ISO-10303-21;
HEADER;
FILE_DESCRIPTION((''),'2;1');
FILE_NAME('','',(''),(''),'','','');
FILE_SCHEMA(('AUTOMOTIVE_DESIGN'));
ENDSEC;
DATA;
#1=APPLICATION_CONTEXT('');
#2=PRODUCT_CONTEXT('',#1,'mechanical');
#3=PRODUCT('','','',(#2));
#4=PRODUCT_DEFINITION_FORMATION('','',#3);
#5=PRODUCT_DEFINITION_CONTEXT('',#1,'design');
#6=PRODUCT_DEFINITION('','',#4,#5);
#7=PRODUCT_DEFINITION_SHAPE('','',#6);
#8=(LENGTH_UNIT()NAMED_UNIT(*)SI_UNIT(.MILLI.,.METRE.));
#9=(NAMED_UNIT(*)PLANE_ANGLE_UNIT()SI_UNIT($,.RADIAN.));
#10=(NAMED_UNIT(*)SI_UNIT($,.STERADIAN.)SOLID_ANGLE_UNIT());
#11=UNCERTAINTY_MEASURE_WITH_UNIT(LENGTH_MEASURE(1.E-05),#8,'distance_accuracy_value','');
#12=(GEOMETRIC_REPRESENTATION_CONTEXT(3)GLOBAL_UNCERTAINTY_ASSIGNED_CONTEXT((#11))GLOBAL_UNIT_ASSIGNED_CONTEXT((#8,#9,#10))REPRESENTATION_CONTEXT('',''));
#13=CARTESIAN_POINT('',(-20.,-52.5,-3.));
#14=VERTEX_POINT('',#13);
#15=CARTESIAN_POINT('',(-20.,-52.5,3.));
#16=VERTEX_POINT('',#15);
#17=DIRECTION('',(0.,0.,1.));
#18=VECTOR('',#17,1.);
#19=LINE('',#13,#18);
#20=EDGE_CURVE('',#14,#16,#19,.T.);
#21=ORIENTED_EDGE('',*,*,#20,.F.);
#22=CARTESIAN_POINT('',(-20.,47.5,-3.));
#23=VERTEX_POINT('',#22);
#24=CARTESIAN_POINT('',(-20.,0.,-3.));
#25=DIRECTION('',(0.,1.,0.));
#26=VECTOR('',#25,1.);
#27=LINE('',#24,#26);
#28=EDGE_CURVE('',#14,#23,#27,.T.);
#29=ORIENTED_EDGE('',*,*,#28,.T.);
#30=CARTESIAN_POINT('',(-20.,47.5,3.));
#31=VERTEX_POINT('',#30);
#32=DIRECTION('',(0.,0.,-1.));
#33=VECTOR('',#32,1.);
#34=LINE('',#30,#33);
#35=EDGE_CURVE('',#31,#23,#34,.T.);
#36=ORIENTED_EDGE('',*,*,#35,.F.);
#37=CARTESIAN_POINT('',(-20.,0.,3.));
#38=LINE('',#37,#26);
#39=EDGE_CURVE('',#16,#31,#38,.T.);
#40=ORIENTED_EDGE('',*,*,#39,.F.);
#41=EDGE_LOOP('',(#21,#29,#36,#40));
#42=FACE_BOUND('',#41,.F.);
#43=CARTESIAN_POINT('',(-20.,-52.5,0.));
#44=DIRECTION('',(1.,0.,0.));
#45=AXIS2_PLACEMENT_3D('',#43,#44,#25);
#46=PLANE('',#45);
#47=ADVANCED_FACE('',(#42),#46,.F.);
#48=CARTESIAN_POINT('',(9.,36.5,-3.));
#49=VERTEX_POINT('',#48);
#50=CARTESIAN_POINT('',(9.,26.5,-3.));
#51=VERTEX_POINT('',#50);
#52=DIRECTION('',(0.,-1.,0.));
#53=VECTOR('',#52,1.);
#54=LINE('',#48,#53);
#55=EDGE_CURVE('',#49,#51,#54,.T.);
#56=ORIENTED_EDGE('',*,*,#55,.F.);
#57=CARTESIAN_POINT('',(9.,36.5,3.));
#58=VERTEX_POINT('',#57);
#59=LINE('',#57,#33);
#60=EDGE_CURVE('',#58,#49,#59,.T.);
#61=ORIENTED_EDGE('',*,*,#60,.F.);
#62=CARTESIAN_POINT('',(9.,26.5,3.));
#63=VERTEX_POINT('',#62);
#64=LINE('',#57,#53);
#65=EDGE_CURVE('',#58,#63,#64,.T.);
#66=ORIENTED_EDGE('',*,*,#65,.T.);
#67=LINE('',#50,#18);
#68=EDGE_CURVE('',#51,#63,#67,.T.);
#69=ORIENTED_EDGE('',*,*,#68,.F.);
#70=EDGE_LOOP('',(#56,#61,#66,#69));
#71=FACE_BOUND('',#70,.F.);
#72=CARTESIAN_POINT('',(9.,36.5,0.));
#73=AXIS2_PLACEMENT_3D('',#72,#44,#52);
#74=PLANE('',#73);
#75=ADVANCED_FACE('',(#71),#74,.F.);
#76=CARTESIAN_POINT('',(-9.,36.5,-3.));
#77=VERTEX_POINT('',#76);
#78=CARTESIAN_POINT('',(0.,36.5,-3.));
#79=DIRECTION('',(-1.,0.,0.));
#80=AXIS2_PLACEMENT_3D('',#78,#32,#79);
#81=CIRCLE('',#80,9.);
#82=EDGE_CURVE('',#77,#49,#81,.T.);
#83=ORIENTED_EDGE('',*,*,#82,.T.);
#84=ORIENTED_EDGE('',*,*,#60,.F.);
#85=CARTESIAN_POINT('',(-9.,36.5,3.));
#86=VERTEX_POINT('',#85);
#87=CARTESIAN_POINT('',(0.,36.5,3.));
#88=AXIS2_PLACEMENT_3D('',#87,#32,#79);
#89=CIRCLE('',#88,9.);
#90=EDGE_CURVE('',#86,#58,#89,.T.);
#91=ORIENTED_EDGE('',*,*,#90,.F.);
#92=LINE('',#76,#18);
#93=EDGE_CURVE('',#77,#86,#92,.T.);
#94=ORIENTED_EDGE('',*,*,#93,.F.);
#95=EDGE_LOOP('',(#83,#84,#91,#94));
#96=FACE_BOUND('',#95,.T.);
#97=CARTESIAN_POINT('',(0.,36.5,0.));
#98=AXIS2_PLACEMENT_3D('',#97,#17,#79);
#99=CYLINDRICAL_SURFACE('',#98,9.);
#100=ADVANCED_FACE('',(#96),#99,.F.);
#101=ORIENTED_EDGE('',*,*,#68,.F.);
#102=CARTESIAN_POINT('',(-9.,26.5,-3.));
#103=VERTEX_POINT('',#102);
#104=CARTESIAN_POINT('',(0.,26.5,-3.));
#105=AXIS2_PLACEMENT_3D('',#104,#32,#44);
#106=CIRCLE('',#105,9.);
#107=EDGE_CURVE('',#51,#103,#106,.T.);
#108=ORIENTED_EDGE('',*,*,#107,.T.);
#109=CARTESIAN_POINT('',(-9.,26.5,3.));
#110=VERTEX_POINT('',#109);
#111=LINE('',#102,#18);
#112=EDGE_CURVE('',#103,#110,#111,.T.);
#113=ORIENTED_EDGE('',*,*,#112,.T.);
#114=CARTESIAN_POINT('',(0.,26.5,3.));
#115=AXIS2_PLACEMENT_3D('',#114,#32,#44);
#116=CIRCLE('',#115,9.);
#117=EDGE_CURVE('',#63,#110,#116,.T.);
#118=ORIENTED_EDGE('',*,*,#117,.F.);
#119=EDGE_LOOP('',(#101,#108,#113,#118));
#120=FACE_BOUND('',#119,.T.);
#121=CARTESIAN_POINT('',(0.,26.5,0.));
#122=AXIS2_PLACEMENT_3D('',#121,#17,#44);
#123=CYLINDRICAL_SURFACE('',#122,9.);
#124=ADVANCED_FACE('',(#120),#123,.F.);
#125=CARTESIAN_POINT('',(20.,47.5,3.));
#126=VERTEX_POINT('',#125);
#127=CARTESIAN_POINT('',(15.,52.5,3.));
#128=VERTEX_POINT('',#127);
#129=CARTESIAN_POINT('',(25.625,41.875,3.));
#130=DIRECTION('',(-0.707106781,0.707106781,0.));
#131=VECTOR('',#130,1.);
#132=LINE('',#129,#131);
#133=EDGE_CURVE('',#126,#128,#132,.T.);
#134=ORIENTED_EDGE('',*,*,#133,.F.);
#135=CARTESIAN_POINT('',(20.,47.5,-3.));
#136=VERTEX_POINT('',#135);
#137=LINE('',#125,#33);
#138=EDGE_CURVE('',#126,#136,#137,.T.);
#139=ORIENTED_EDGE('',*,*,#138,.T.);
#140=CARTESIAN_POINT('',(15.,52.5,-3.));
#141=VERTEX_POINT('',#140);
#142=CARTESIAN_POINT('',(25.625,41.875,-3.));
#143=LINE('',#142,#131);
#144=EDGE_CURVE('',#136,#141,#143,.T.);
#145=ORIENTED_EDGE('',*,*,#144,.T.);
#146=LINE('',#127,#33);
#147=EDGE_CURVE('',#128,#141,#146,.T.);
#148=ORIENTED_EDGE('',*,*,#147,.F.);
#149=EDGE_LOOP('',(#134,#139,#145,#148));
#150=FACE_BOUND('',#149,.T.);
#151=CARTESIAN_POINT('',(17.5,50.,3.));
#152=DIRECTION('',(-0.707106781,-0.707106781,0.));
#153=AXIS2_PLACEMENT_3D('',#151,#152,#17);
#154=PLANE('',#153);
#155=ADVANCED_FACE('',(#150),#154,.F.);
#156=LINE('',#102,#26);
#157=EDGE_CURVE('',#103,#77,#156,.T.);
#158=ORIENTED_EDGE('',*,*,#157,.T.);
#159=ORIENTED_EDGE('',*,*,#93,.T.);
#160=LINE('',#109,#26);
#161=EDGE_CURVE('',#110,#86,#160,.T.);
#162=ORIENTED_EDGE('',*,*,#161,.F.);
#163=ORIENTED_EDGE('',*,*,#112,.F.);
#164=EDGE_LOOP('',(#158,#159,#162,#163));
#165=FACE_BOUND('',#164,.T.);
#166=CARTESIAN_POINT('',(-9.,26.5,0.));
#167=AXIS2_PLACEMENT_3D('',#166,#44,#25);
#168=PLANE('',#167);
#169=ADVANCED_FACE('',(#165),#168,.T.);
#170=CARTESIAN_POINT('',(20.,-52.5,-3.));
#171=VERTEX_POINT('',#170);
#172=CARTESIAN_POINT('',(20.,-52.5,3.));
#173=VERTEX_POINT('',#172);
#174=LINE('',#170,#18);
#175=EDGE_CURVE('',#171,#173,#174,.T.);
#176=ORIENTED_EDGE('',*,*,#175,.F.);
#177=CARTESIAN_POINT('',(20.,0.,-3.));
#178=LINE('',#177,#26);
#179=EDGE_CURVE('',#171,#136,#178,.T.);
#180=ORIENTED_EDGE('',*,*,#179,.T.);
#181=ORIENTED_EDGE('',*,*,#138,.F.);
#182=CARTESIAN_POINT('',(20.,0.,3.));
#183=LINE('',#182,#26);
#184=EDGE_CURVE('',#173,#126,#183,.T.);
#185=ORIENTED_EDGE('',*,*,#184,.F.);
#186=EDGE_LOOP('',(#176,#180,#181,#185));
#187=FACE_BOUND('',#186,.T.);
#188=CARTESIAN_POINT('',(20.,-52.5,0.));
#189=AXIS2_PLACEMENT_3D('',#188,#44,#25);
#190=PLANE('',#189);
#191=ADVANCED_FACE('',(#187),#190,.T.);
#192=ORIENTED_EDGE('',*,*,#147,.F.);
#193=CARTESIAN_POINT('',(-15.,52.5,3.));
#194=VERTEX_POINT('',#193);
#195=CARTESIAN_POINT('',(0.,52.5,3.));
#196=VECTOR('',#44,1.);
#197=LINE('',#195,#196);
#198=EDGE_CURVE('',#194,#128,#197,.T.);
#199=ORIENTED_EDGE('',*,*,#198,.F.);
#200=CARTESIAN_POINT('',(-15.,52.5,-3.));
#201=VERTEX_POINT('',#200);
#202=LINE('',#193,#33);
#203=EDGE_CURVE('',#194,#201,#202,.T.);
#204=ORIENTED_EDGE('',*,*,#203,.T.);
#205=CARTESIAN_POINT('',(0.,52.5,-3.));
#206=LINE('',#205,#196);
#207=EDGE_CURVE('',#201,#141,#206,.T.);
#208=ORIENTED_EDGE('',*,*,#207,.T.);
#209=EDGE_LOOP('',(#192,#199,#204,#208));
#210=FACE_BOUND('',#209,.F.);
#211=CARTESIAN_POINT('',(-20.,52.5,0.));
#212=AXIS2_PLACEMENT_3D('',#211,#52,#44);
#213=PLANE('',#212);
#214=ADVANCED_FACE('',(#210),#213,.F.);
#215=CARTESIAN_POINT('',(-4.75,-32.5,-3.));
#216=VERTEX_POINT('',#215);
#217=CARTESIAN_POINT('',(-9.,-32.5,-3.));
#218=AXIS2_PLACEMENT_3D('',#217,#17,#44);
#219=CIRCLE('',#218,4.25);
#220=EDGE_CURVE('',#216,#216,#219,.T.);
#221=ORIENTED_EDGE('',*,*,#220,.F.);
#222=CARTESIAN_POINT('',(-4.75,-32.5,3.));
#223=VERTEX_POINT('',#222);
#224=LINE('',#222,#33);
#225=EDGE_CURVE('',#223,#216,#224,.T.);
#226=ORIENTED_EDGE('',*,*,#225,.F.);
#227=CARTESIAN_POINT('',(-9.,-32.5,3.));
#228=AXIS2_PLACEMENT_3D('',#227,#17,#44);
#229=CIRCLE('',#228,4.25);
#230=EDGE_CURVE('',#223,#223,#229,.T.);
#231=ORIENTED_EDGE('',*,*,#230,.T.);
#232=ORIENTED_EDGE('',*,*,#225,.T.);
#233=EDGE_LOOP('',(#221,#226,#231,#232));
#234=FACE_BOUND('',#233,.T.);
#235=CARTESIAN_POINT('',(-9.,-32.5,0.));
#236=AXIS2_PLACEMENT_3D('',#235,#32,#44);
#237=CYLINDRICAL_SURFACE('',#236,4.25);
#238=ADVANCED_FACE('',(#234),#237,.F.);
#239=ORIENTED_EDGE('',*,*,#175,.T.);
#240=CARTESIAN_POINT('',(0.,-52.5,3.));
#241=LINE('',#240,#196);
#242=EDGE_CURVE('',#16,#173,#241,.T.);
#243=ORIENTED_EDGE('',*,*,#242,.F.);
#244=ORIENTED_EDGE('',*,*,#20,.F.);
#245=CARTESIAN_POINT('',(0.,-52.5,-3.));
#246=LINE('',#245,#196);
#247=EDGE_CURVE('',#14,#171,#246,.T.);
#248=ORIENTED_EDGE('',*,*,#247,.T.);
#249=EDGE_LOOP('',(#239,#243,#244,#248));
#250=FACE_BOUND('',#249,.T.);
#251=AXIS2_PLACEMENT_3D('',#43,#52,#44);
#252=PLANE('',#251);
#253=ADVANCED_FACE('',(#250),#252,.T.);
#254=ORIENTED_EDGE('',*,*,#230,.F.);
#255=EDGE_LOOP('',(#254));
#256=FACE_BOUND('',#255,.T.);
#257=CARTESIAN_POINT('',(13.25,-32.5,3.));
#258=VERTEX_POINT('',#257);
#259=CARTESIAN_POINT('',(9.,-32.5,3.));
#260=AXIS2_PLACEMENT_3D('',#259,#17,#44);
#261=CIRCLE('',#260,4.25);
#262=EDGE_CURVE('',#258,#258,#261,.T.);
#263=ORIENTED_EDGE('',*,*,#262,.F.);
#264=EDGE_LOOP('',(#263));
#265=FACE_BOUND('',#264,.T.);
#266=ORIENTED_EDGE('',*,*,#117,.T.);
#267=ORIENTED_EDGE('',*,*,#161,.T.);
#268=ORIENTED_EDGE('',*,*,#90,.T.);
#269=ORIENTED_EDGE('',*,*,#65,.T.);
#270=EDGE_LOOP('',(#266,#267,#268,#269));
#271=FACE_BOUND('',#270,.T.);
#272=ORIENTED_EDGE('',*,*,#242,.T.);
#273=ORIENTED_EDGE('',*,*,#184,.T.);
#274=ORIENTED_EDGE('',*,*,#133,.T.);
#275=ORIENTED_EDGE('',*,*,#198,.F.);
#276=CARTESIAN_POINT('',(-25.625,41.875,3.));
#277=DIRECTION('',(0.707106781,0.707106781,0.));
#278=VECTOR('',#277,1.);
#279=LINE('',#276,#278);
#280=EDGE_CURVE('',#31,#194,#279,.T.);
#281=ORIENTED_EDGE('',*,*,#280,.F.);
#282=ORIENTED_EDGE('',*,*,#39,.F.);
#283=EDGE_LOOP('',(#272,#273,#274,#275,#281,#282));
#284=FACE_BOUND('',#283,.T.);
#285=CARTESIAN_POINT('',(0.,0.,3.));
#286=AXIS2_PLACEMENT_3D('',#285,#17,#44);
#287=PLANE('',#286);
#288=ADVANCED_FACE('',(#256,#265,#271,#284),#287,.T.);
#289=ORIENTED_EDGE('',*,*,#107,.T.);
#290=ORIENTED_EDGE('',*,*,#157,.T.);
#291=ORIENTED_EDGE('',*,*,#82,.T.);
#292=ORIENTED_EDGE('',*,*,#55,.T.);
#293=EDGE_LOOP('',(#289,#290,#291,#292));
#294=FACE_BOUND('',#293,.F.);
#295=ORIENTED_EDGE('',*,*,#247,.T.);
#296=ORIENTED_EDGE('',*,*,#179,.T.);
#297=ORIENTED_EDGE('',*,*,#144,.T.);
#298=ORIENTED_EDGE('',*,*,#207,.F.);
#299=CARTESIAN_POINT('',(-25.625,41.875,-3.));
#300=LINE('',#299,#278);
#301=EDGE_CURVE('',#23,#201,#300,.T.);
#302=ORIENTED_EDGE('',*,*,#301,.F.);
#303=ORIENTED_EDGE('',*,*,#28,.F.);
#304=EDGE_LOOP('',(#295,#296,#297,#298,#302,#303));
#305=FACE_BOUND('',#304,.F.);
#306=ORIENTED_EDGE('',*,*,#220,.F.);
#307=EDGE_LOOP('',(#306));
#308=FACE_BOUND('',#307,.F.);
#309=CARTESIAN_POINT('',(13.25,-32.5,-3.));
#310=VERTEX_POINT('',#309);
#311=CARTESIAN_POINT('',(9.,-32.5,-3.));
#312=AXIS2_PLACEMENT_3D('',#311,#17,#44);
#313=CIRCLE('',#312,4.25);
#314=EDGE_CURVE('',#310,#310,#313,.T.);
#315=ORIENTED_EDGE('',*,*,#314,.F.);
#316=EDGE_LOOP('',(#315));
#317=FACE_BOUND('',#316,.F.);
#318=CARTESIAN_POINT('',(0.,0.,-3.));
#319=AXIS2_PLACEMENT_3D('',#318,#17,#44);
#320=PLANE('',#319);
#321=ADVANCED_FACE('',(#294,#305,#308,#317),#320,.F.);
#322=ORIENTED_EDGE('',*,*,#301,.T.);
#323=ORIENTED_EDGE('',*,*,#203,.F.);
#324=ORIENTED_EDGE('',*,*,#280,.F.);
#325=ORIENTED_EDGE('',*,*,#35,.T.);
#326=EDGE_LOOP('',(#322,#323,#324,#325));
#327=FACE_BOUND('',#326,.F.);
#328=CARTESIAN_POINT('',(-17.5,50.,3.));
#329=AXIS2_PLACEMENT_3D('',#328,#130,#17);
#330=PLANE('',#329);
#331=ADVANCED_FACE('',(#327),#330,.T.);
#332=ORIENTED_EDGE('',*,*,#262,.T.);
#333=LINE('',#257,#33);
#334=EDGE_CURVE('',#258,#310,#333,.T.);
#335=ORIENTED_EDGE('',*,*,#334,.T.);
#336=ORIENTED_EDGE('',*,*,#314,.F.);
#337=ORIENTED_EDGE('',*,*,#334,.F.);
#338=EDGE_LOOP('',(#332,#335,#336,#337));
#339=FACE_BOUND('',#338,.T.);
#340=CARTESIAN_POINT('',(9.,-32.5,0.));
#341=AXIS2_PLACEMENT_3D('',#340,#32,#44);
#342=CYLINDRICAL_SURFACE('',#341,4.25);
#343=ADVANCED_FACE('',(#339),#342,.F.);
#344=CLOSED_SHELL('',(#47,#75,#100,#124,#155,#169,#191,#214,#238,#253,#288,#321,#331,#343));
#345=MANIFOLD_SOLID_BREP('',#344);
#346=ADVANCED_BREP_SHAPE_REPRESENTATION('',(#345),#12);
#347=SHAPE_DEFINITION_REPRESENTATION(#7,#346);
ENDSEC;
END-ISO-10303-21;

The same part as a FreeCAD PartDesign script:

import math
import FreeCAD as App
import Part
import Sketcher

V = App.Vector


def edges_at(feature, points):
    """Names of the edges that pass closest to the given points."""
    edges = feature.Shape.Edges
    near = lambda p: min(range(len(edges)), key=lambda i: edges[i].distToShape(Part.Vertex(*p))[0])
    return sorted({f"Edge{near(p) + 1}" for p in points})


def add_polygon(sketch, points):
    """Adds a closed chain of lines whose ends are joined by coincident constraints."""
    first, n = sketch.GeometryCount, len(points)
    for a, b in zip(points, points[1:] + points[:1]):
        sketch.addGeometry(Part.LineSegment(App.Vector(*a, 0), App.Vector(*b, 0)), False)
    for i in range(n):
        sketch.addConstraint(Sketcher.Constraint("Coincident", first + i, 2, first + (i + 1) % n, 1))

doc = App.newDocument("Part")
body = doc.addObject("PartDesign::Body", "Body")

# Sketch on XY plane
sketch1 = body.newObject("Sketcher::SketchObject", "Sketch")
sketch1.AttachmentSupport = (doc.getObject("XY_Plane"), [""])
sketch1.MapMode = "FlatFace"
add_polygon(sketch1, [(-20, 52.5), (-20, -52.5), (20, -52.5), (20, 52.5)])  # lines 0-3
sketch1.addGeometry(Part.Circle(V(-9, -32.5, 0), V(0, 0, 1), 4.25), False)  # 4
sketch1.addGeometry(Part.Circle(V(9, -32.5, 0), V(0, 0, 1), 4.25), False)  # 5
sketch1.addGeometry(Part.ArcOfCircle(Part.Circle(V(0, 36.5, 0), V(0, 0, 1), 9), math.radians(0), math.radians(180)), False)  # 6
sketch1.addGeometry(Part.LineSegment(V(9, 36.5, 0), V(9, 26.5, 0)), False)  # 7
sketch1.addGeometry(Part.ArcOfCircle(Part.Circle(V(0, 26.5, 0), V(0, 0, 1), 9), math.radians(180), math.radians(360)), False)  # 8
sketch1.addGeometry(Part.LineSegment(V(-9, 26.5, 0), V(-9, 36.5, 0)), False)  # 9
sketch1.addConstraint([
    Sketcher.Constraint("Tangent", 6, 1, 7, 1),
    Sketcher.Constraint("Tangent", 7, 2, 8, 2),
    Sketcher.Constraint("Tangent", 8, 1, 9, 1),
    Sketcher.Constraint("Tangent", 9, 2, 6, 2),
    Sketcher.Constraint("Vertical", 0),
    Sketcher.Constraint("Horizontal", 1),
    Sketcher.Constraint("Vertical", 2),
    Sketcher.Constraint("Horizontal", 3),
    Sketcher.Constraint("Vertical", 7),
    Sketcher.Constraint("Vertical", 9),
    Sketcher.Constraint("Equal", 4, 5),
    Sketcher.Constraint("Symmetric", 0, 2, 2, 2, -1, 1),
    Sketcher.Constraint("Symmetric", 4, 3, 5, 3, -2),
    Sketcher.Constraint("PointOnObject", 6, 3, -2),
    Sketcher.Constraint("Vertical", 5, 3, 6, 1),
    Sketcher.Constraint("Radius", 6, 9.0),
    Sketcher.Constraint("Diameter", 4, 8.5),
    Sketcher.Constraint("DistanceX", 1, 1, 1, 2, 40.0),
    Sketcher.Constraint("DistanceY", 0, 2, 0, 1, 105.0),
    Sketcher.Constraint("DistanceY", 7, 2, 7, 1, 10.0),
    Sketcher.Constraint("DistanceY", 4, 3, 6, 3, 69.0),
    Sketcher.Constraint("DistanceY", 0, 2, 4, 3, 20.0),
])
pad1 = body.newObject("PartDesign::Pad", "Pad")
pad1.Profile = sketch1
pad1.Length = 6
pad1.Midplane = True
doc.recompute()

chamfer = body.newObject("PartDesign::Chamfer", "Chamfer")
chamfer.Base = (pad1, edges_at(pad1, [(-20, 52.5, 0), (20, 52.5, 0)]))
chamfer.Size = 5

doc.recompute()
